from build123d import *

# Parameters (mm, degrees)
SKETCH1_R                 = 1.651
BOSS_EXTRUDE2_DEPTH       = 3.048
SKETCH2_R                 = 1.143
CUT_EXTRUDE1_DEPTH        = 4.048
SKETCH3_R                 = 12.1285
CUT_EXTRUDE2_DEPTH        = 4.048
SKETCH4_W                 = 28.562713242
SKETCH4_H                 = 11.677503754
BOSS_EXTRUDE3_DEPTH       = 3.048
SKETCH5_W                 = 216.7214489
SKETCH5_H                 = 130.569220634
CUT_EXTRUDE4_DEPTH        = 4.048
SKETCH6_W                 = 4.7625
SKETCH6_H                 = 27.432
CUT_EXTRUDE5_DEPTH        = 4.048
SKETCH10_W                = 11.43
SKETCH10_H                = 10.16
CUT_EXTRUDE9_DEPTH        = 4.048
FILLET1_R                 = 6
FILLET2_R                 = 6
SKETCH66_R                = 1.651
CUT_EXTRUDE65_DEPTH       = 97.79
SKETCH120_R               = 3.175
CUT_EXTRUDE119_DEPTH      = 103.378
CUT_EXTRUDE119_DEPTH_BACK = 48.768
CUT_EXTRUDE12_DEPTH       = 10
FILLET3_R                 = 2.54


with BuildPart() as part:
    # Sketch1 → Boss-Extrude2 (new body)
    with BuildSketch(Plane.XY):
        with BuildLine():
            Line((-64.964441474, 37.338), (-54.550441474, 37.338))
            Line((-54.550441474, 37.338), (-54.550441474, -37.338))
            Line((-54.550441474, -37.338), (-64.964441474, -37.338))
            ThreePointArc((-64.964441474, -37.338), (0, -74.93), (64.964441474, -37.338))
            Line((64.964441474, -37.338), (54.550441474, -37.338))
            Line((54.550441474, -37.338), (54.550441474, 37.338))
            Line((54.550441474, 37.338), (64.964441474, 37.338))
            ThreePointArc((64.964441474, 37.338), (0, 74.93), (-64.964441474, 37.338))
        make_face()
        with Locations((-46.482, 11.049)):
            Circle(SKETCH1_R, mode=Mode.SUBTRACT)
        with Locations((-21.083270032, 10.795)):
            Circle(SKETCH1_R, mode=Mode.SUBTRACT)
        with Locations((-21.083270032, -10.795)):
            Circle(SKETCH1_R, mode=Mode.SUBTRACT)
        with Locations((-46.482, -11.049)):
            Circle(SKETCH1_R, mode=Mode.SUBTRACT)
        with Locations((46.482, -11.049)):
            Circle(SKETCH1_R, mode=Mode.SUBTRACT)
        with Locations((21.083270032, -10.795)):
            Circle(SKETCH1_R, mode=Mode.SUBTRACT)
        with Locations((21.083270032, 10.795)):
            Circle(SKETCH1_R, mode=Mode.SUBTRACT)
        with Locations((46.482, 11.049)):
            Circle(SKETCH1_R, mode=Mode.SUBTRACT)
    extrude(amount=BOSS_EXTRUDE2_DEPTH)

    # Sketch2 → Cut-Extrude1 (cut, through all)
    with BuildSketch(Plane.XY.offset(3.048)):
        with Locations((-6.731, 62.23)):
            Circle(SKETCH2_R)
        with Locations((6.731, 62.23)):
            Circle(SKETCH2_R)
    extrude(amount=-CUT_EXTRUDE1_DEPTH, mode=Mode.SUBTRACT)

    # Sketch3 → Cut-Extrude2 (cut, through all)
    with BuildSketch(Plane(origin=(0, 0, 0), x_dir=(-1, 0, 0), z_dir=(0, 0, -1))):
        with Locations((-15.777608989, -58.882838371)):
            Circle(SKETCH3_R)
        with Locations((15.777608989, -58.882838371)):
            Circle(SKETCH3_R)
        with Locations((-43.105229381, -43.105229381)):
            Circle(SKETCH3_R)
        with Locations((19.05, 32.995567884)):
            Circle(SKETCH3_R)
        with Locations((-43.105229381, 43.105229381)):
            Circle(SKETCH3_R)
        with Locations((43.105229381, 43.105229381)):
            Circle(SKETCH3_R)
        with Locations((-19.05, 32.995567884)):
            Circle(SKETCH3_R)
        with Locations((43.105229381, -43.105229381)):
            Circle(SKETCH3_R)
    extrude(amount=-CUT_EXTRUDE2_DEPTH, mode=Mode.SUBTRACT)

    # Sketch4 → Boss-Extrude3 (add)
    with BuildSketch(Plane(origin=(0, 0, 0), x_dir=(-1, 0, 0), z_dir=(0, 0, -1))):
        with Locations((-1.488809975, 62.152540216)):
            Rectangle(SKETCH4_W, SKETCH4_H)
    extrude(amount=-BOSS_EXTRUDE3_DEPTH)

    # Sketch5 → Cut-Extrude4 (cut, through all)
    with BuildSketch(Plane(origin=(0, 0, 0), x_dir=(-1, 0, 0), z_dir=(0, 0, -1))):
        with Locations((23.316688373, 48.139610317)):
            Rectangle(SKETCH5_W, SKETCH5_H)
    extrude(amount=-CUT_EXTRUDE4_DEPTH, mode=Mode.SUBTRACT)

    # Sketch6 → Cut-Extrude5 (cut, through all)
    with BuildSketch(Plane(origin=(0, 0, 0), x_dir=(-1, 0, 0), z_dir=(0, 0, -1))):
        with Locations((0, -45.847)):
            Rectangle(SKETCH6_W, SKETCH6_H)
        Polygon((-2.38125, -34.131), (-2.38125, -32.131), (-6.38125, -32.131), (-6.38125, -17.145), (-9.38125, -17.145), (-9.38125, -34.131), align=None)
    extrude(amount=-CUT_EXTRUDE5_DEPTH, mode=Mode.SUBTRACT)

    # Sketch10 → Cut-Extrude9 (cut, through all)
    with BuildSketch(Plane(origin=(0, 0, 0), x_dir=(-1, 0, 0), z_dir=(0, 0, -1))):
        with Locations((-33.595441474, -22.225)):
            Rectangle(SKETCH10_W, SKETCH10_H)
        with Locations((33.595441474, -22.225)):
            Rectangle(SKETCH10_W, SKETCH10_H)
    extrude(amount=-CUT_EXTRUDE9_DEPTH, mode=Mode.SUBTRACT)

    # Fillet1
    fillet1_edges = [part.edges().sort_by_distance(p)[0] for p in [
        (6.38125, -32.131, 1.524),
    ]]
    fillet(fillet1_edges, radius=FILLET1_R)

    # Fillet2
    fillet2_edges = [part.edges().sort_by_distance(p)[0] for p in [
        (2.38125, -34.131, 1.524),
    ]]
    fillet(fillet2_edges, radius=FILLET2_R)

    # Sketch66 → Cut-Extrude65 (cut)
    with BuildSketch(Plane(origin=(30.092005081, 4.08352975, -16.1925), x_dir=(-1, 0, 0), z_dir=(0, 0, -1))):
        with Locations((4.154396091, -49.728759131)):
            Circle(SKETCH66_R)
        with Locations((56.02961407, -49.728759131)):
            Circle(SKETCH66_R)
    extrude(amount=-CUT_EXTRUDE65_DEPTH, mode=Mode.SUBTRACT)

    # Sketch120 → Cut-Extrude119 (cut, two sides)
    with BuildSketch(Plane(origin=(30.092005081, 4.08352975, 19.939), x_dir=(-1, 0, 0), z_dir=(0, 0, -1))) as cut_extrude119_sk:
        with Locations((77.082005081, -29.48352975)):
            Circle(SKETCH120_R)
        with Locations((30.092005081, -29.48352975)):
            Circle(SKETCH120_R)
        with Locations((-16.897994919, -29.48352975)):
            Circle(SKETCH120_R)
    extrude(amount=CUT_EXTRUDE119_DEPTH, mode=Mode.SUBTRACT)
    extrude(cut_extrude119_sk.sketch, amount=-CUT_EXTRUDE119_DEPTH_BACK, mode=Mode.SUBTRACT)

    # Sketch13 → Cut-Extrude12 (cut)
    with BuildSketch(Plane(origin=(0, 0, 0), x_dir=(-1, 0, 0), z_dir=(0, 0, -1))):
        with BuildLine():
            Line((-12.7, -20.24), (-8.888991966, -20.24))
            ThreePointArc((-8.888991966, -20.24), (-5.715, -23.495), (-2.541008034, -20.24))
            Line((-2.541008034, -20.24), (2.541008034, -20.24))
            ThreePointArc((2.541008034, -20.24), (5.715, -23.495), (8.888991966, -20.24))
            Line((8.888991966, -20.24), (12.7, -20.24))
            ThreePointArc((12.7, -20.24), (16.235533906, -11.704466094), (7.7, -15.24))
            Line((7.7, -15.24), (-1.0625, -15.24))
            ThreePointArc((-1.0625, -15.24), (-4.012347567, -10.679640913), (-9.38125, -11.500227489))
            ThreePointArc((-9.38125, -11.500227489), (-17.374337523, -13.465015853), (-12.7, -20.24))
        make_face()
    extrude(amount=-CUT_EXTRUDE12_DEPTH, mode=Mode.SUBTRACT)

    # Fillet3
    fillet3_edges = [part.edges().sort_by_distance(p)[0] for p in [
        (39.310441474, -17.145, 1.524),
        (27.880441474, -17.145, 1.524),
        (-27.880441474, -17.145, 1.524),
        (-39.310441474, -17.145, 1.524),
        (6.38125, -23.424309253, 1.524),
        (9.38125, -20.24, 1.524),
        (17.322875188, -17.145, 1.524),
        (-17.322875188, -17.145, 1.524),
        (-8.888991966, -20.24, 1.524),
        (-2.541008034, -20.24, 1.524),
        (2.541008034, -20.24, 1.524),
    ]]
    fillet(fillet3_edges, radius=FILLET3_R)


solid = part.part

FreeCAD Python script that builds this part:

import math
import FreeCAD as App
import Part
import Sketcher

V = App.Vector
Q = App.Units.Quantity


def edges_at(feature, points):
    """Names of the edges that pass closest to the given points."""
    edges = feature.Shape.Edges
    near = lambda p: min(range(len(edges)), key=lambda i: edges[i].distToShape(Part.Vertex(*p))[0])
    return sorted({f"Edge{near(p) + 1}" for p in points})


def add_polygon(sketch, points):
    """Adds a closed chain of lines whose ends are joined by coincident constraints."""
    first, n = sketch.GeometryCount, len(points)
    for a, b in zip(points, points[1:] + points[:1]):
        sketch.addGeometry(Part.LineSegment(App.Vector(*a, 0), App.Vector(*b, 0)), False)
    for i in range(n):
        sketch.addConstraint(Sketcher.Constraint("Coincident", first + i, 2, first + (i + 1) % n, 1))

doc = App.newDocument("Part")
params = doc.addObject("Spreadsheet::Sheet", "Params")
for row, (alias, value) in enumerate([
    ("sketch1_diameter", "0.13 in"),
    ("sketch1_radius", "2.95 in"),
    ("sketch1_width", "0.41 in"),
    ("sketch1_height", "2.94 in"),
    ("pad1_length", "0.12 in"),
    ("sketch2_diameter", "0.09 in"),
    ("sketch3_diameter", "0.955 in"),
    ("pad2_length", "0.12 in"),
    ("sketch6_height", "1.08 in"),
    ("sketch6_height2", "0.59 in"),
    ("sketch6_width", "0.1875 in"),
    ("sketch7_height", "0.4 in"),
    ("sketch7_width", "0.45 in"),
    ("fillet_radius", "6 mm"),
    ("fillet2_radius", "6 mm"),
    ("sketch8_diameter", "0.13 in"),
    ("pocket6_length", "3.85 in"),
    ("sketch9_diameter", "0.25 in"),
    ("sketch10_radius", "0.125 in"),
    ("pocket8_length", "10 mm"),
    ("fillet3_radius", "0.1 in"),
], start=1):
    params.set(f"A{row}", alias)
    params.set(f"B{row}", "=" + value)
    params.setAlias(f"B{row}", alias)

body = doc.addObject("PartDesign::Body", "Body")

# Sketch on XY plane
sketch1 = doc.addObject("Sketcher::SketchObject", "Sketch")
body.addObject(sketch1)
sketch1.AttachmentSupport = (doc.XY_Plane, [""])
sketch1.MapMode = "FlatFace"
sketch1.addGeometry([
    Part.LineSegment(V(-65, 37.3, 0), V(-54.6, 37.3, 0)),  # 0
    Part.LineSegment(V(-54.6, 37.3, 0), V(-54.6, -37.3, 0)),  # 1
    Part.LineSegment(V(-54.6, -37.3, 0), V(-65, -37.3, 0)),  # 2
    Part.ArcOfCircle(Part.Circle(V(0, 0, 0), V(0, 0, 1), 74.9), math.radians(-150), math.radians(-30)),  # 3
    Part.LineSegment(V(65, -37.3, 0), V(54.6, -37.3, 0)),  # 4
    Part.LineSegment(V(54.6, -37.3, 0), V(54.6, 37.3, 0)),  # 5
    Part.LineSegment(V(54.6, 37.3, 0), V(65, 37.3, 0)),  # 6
    Part.ArcOfCircle(Part.Circle(V(0, 0, 0), V(0, 0, 1), 74.9), math.radians(30), math.radians(150)),  # 7
    Part.Circle(V(-46.5, -11, 0), V(0, 0, 1), 1.7),  # 8
    Part.Circle(V(-21.1, -10.8, 0), V(0, 0, 1), 1.7),  # 9
    Part.Circle(V(21.1, -10.8, 0), V(0, 0, 1), 1.7),  # 10
    Part.Circle(V(46.5, -11, 0), V(0, 0, 1), 1.7),  # 11
    Part.Circle(V(-46.5, 11, 0), V(0, 0, 1), 1.7),  # 12
    Part.Circle(V(-21.1, 10.8, 0), V(0, 0, 1), 1.7),  # 13
    Part.Circle(V(21.1, 10.8, 0), V(0, 0, 1), 1.7),  # 14
    Part.Circle(V(46.5, 11, 0), V(0, 0, 1), 1.7),  # 15
], False)
sketch1.addConstraint([
    Sketcher.Constraint("Coincident", 0, 2, 1, 1),
    Sketcher.Constraint("Coincident", 1, 2, 2, 1),
    Sketcher.Constraint("Coincident", 2, 2, 3, 1),
    Sketcher.Constraint("Coincident", 3, 2, 4, 1),
    Sketcher.Constraint("Coincident", 4, 2, 5, 1),
    Sketcher.Constraint("Coincident", 5, 2, 6, 1),
    Sketcher.Constraint("Coincident", 6, 2, 7, 1),
    Sketcher.Constraint("Coincident", 7, 2, 0, 1),
    Sketcher.Constraint("Horizontal", 0),
    Sketcher.Constraint("Vertical", 1),
    Sketcher.Constraint("Horizontal", 2),
    Sketcher.Constraint("Horizontal", 4),
    Sketcher.Constraint("Vertical", 5),
    Sketcher.Constraint("Horizontal", 6),
    Sketcher.Constraint("Coincident", 3, 3, -1, 1),
    Sketcher.Constraint("Coincident", 7, 3, -1, 1),
    Sketcher.Constraint("Equal", 3, 7),
    Sketcher.Constraint("Equal", 8, 9),
    Sketcher.Constraint("Equal", 9, 10),
    Sketcher.Constraint("Equal", 10, 11),
    Sketcher.Constraint("Equal", 11, 12),
    Sketcher.Constraint("Equal", 12, 13),
    Sketcher.Constraint("Equal", 13, 14),
    Sketcher.Constraint("Equal", 14, 15),
    Sketcher.Constraint("Symmetric", 11, 3, 12, 3, -1, 1),
    Sketcher.Constraint("Symmetric", 10, 3, 13, 3, -1, 1),
    Sketcher.Constraint("Symmetric", 9, 3, 14, 3, -1, 1),
    Sketcher.Constraint("Symmetric", 8, 3, 15, 3, -1, 1),
    Sketcher.Constraint("Symmetric", 0, 2, 4, 2, -1, 1),
    Sketcher.Constraint("Symmetric", 9, 3, 10, 3, -2),
    Sketcher.Constraint("Symmetric", 8, 3, 11, 3, -2),
    Sketcher.Constraint("Horizontal", 2, 2, 3, 2),
    Sketcher.Constraint("Horizontal", 0, 2, 5, 2),
    Sketcher.Constraint("Diameter", 8, Q("0.13 in")),
    Sketcher.Constraint("Radius", 3, Q("2.95 in")),
    Sketcher.Constraint("DistanceX", 0, 1, 0, 2, Q("0.41 in")),
    Sketcher.Constraint("DistanceY", 1, 2, 1, 1, Q("2.94 in")),
    Sketcher.Constraint("DistanceX", 8, 3, -1, 1, Q("1.83 in")),
    Sketcher.Constraint("DistanceY", 8, 3, 9, 3, Q("0.01 in")),
    Sketcher.Constraint("DistanceY", 8, 3, 12, 3, Q("0.87 in")),
    Sketcher.Constraint("DistanceX", 9, 3, 10, 3, Q("1.6601 in")),
])
sketch1.setExpression("Constraints[33]", "Params.sketch1_diameter")
sketch1.setExpression("Constraints[34]", "Params.sketch1_radius")
sketch1.setExpression("Constraints[35]", "Params.sketch1_width")
sketch1.setExpression("Constraints[36]", "Params.sketch1_height")
pad1 = doc.addObject("PartDesign::Pad", "Pad")
body.addObject(pad1)
pad1.Profile = sketch1
pad1.setExpression("Length", "Params.pad1_length")

# Sketch on XY plane
sketch2 = doc.addObject("Sketcher::SketchObject", "Sketch001")
body.addObject(sketch2)
sketch2.AttachmentSupport = (doc.XY_Plane, [""])
sketch2.MapMode = "FlatFace"
sketch2.AttachmentOffset = App.Placement(V(0, 0, 0.12 * 25.4), App.Rotation())
sketch2.addGeometry([
    Part.Circle(V(-6.7, 62.2, 0), V(0, 0, 1), 1.1),
    Part.Circle(V(6.7, 62.2, 0), V(0, 0, 1), 1.1),
], False)
sketch2.addConstraint([
    Sketcher.Constraint("Equal", 0, 1),
    Sketcher.Constraint("Symmetric", 0, 3, 1, 3, -2),
    Sketcher.Constraint("Diameter", 0, Q("0.09 in")),
    Sketcher.Constraint("DistanceY", -1, 1, 0, 3, Q("2.45 in")),
    Sketcher.Constraint("DistanceX", 0, 3, 1, 3, Q("0.53 in")),
])
sketch2.setExpression("Constraints[2]", "Params.sketch2_diameter")
pocket1 = doc.addObject("PartDesign::Pocket", "Pocket")
body.addObject(pocket1)
pocket1.Profile = sketch2
pocket1.Type = "ThroughAll"

# Sketch on XY plane
sketch3 = doc.addObject("Sketcher::SketchObject", "Sketch002")
body.addObject(sketch3)
sketch3.AttachmentSupport = (doc.XY_Plane, [""])
sketch3.MapMode = "FlatFace"
sketch3.addGeometry([
    Part.Circle(V(16, -59, 0), V(0, 0, 1), 12),  # 0
    Part.Circle(V(-16, -59, 0), V(0, 0, 1), 12),  # 1
    Part.Circle(V(43, -43, 0), V(0, 0, 1), 12),  # 2
    Part.Circle(V(-19, 33, 0), V(0, 0, 1), 12),  # 3
    Part.Circle(V(43, 43, 0), V(0, 0, 1), 12),  # 4
    Part.Circle(V(-43, 43, 0), V(0, 0, 1), 12),  # 5
    Part.Circle(V(19, 33, 0), V(0, 0, 1), 12),  # 6
    Part.Circle(V(-43, -43, 0), V(0, 0, 1), 12),  # 7
], False)
sketch3.addConstraint([
    Sketcher.Constraint("Equal", 0, 1),
    Sketcher.Constraint("Equal", 1, 2),
    Sketcher.Constraint("Equal", 2, 3),
    Sketcher.Constraint("Equal", 3, 4),
    Sketcher.Constraint("Equal", 4, 5),
    Sketcher.Constraint("Equal", 5, 6),
    Sketcher.Constraint("Equal", 6, 7),
    Sketcher.Constraint("Symmetric", 2, 3, 5, 3, -1, 1),
    Sketcher.Constraint("Symmetric", 4, 3, 7, 3, -1, 1),
    Sketcher.Constraint("Symmetric", 0, 3, 1, 3, -2),
    Sketcher.Constraint("Symmetric", 4, 3, 5, 3, -2),
    Sketcher.Constraint("Symmetric", 3, 3, 6, 3, -2),
    Sketcher.Constraint("Diameter", 0, Q("0.955 in")),
    Sketcher.Constraint("DistanceX", 3, 3, 6, 3, Q("1.5 in")),
    Sketcher.Constraint("DistanceX", -1, 1, 0, 3, 15.777609),
    Sketcher.Constraint("DistanceY", 0, 3, -1, 1, 58.882838),
    Sketcher.Constraint("DistanceX", -1, 1, 2, 3, 43.105229),
    Sketcher.Constraint("DistanceY", 2, 3, -1, 1, 43.105229),
    Sketcher.Constraint("DistanceY", 3, 3, 4, 3, 10.109661),
])
sketch3.setExpression("Constraints[12]", "Params.sketch3_diameter")
pocket2 = doc.addObject("PartDesign::Pocket", "Pocket001")
body.addObject(pocket2)
pocket2.Profile = sketch3
pocket2.Type = "ThroughAll"
pocket2.Reversed = True

# Sketch on XY plane
sketch4 = doc.addObject("Sketcher::SketchObject", "Sketch003")
body.addObject(sketch4)
sketch4.AttachmentSupport = (doc.XY_Plane, [""])
sketch4.MapMode = "FlatFace"
add_polygon(sketch4, [(16, 68), (16, 56), (-13, 56), (-13, 68)])  # lines 0-3
sketch4.addConstraint([
    Sketcher.Constraint("Vertical", 0),
    Sketcher.Constraint("Horizontal", 1),
    Sketcher.Constraint("Vertical", 2),
    Sketcher.Constraint("Horizontal", 3),
    Sketcher.Constraint("DistanceX", 1, 2, 1, 1, 28.562713),
    Sketcher.Constraint("DistanceY", 0, 2, 0, 1, 11.677504),
    Sketcher.Constraint("DistanceY", -1, 1, 0, 2, 56.313788),
    Sketcher.Constraint("DistanceX", -1, 1, 0, 2, 15.770167),
])
pad2 = doc.addObject("PartDesign::Pad", "Pad001")
body.addObject(pad2)
pad2.Profile = sketch4
pad2.setExpression("Length", "Params.pad2_length")

# Sketch on XY plane
sketch5 = doc.addObject("Sketcher::SketchObject", "Sketch004")
body.addObject(sketch5)
sketch5.AttachmentSupport = (doc.XY_Plane, [""])
sketch5.MapMode = "FlatFace"
add_polygon(sketch5, [(85, 113), (85, -17), (-132, -17), (-132, 113)])  # lines 0-3
sketch5.addConstraint([
    Sketcher.Constraint("Vertical", 0),
    Sketcher.Constraint("Horizontal", 1),
    Sketcher.Constraint("Vertical", 2),
    Sketcher.Constraint("Horizontal", 3),
    Sketcher.Constraint("DistanceY", 0, 2, -1, 1, Q("0.675 in")),
    Sketcher.Constraint("DistanceX", 1, 2, 1, 1, 216.721449),
    Sketcher.Constraint("DistanceY", 0, 2, 0, 1, 130.569221),
    Sketcher.Constraint("DistanceX", -1, 1, 0, 2, 85.044036),
])
pocket3 = doc.addObject("PartDesign::Pocket", "Pocket002")
body.addObject(pocket3)
pocket3.Profile = sketch5
pocket3.Type = "ThroughAll"
pocket3.Reversed = True

# Sketch on XY plane
sketch6 = doc.addObject("Sketcher::SketchObject", "Sketch005")
body.addObject(sketch6)
sketch6.AttachmentSupport = (doc.XY_Plane, [""])
sketch6.MapMode = "FlatFace"
add_polygon(sketch6, [(2.4, -34.1), (2.4, -59.6), (-2.4, -59.6), (-2.4, -32.1), (6.4, -32.1), (6.4, -17.1), (9.4, -17.1), (9.4, -34.1)])  # lines 0-7
sketch6.addConstraint([
    Sketcher.Constraint("Vertical", 0),
    Sketcher.Constraint("Horizontal", 1),
    Sketcher.Constraint("Vertical", 2),
    Sketcher.Constraint("Horizontal", 3),
    Sketcher.Constraint("Vertical", 4),
    Sketcher.Constraint("Horizontal", 5),
    Sketcher.Constraint("Vertical", 6),
    Sketcher.Constraint("Horizontal", 7),
    Sketcher.Constraint("DistanceY", 2, 1, 2, 2, Q("1.08 in")),
    Sketcher.Constraint("DistanceY", 4, 1, 4, 2, Q("0.59 in")),
    Sketcher.Constraint("DistanceX", 1, 2, 1, 1, Q("0.1875 in")),
    Sketcher.Constraint("DistanceX", -1, 1, 0, 2, Q("0.09375 in")),
    Sketcher.Constraint("DistanceY", 0, 2, -1, 1, Q("2.345 in")),
    Sketcher.Constraint("DistanceX", 3, 1, 3, 2, 8.7625),
    Sketcher.Constraint("DistanceX", 5, 1, 5, 2, 3.0),
    Sketcher.Constraint("DistanceY", 0, 2, 0, 1, 25.432),
])
sketch6.setExpression("Constraints[16]", "Params.sketch6_height")
sketch6.setExpression("Constraints[17]", "Params.sketch6_height2")
sketch6.setExpression("Constraints[18]", "Params.sketch6_width")
pocket4 = doc.addObject("PartDesign::Pocket", "Pocket003")
body.addObject(pocket4)
pocket4.Profile = sketch6
pocket4.Type = "ThroughAll"
pocket4.Reversed = True

# Sketch on XY plane
sketch7 = doc.addObject("Sketcher::SketchObject", "Sketch006")
body.addObject(sketch7)
sketch7.AttachmentSupport = (doc.XY_Plane, [""])
sketch7.MapMode = "FlatFace"
add_polygon(sketch7, [(39, -17), (39, -27), (28, -27), (28, -17)])  # lines 0-3
add_polygon(sketch7, [(-28, -17), (-28, -27), (-39, -27), (-39, -17)])  # lines 4-7
sketch7.addConstraint([
    Sketcher.Constraint("Vertical", 0),
    Sketcher.Constraint("Horizontal", 1),
    Sketcher.Constraint("Vertical", 2),
    Sketcher.Constraint("Horizontal", 3),
    Sketcher.Constraint("Vertical", 4),
    Sketcher.Constraint("Horizontal", 5),
    Sketcher.Constraint("Vertical", 6),
    Sketcher.Constraint("Horizontal", 7),
    Sketcher.Constraint("Symmetric", 1, 2, 4, 2, -2),
    Sketcher.Constraint("Symmetric", 3, 2, 6, 2, -2),
    Sketcher.Constraint("DistanceY", 0, 2, 0, 1, Q("0.4 in")),
    Sketcher.Constraint("DistanceX", 1, 2, 1, 1, Q("0.45 in")),
    Sketcher.Constraint("DistanceY", 0, 2, -1, 1, Q("1.075 in")),
    Sketcher.Constraint("DistanceX", -1, 1, 0, 2, 39.310441),
])
sketch7.setExpression("Constraints[18]", "Params.sketch7_height")
sketch7.setExpression("Constraints[19]", "Params.sketch7_width")
pocket5 = doc.addObject("PartDesign::Pocket", "Pocket004")
body.addObject(pocket5)
pocket5.Profile = sketch7
pocket5.Type = "ThroughAll"
pocket5.Reversed = True
doc.recompute()

fillet = doc.addObject("PartDesign::Fillet", "Fillet")
body.addObject(fillet)
fillet.Base = (pocket5, edges_at(pocket5, [(6.381, -32.131, 1.524)]))
fillet.setExpression("Radius", "Params.fillet_radius")
doc.recompute()

fillet2 = doc.addObject("PartDesign::Fillet", "Fillet001")
body.addObject(fillet2)
fillet2.Base = (fillet, edges_at(fillet, [(2.381, -34.131, 1.524)]))
fillet2.setExpression("Radius", "Params.fillet2_radius")

# Sketch on XY plane
sketch8 = doc.addObject("Sketcher::SketchObject", "Sketch007")
body.addObject(sketch8)
sketch8.AttachmentSupport = (doc.XY_Plane, [""])
sketch8.MapMode = "FlatFace"
sketch8.AttachmentOffset = App.Placement(V(0, 0, -0.6375 * 25.4), App.Rotation())
sketch8.addGeometry([
    Part.Circle(V(25.9, -45.6, 0), V(0, 0, 1), 1.7),
    Part.Circle(V(-25.9, -45.6, 0), V(0, 0, 1), 1.7),
], False)
sketch8.addConstraint([
    Sketcher.Constraint("Equal", 0, 1),
    Sketcher.Constraint("Symmetric", 0, 3, 1, 3, -2),
    Sketcher.Constraint("Diameter", 0, Q("0.13 in")),
    Sketcher.Constraint("DistanceX", -1, 1, 0, 3, 25.937609),
    Sketcher.Constraint("DistanceY", 0, 3, -1, 1, 45.645229),
])
sketch8.setExpression("Constraints[2]", "Params.sketch8_diameter")
pocket6 = doc.addObject("PartDesign::Pocket", "Pocket005")
body.addObject(pocket6)
pocket6.Profile = sketch8
pocket6.setExpression("Length", "Params.pocket6_length")
pocket6.Reversed = True

# Sketch on XY plane
sketch9 = doc.addObject("Sketcher::SketchObject", "Sketch008")
body.addObject(sketch9)
sketch9.AttachmentSupport = (doc.XY_Plane, [""])
sketch9.MapMode = "FlatFace"
sketch9.AttachmentOffset = App.Placement(V(0, 0, 0.785 * 25.4), App.Rotation())
sketch9.addGeometry([
    Part.Circle(V(-47, -25.4, 0), V(0, 0, 1), 3.2),
    Part.Circle(V(0, -25.4, 0), V(0, 0, 1), 3.2),
    Part.Circle(V(47, -25.4, 0), V(0, 0, 1), 3.2),
], False)
sketch9.addConstraint([
    Sketcher.Constraint("Equal", 0, 1),
    Sketcher.Constraint("Equal", 1, 2),
    Sketcher.Constraint("Symmetric", 0, 3, 2, 3, -2),
    Sketcher.Constraint("PointOnObject", 1, 3, -2),
    Sketcher.Constraint("Horizontal", 0, 3, 1, 3),
    Sketcher.Constraint("Diameter", 0, Q("0.25 in")),
    Sketcher.Constraint("DistanceY", 0, 3, -1, 1, Q("1 in")),
    Sketcher.Constraint("DistanceX", 0, 3, 2, 3, Q("3.7 in")),
])
sketch9.setExpression("Constraints[5]", "Params.sketch9_diameter")
pocket7 = doc.addObject("PartDesign::Pocket", "Pocket006")
body.addObject(pocket7)
pocket7.Profile = sketch9
pocket7.Type = "ThroughAll"
pocket7.Midplane = True

# Sketch on XY plane
sketch10 = doc.addObject("Sketcher::SketchObject", "Sketch009")
body.addObject(sketch10)
sketch10.AttachmentSupport = (doc.XY_Plane, [""])
sketch10.MapMode = "FlatFace"
sketch10.addGeometry([
    Part.LineSegment(V(12.7, -20.2, 0), V(8.9, -20.2, 0)),  # 0
    Part.ArcOfCircle(Part.Circle(V(5.7, -20.3, 0), V(0, 0, 1), 3.2), math.radians(179), math.radians(361)),  # 1
    Part.LineSegment(V(2.5, -20.2, 0), V(-2.5, -20.2, 0)),  # 2
    Part.ArcOfCircle(Part.Circle(V(-5.7, -20.3, 0), V(0, 0, 1), 3.2), math.radians(179), math.radians(361)),  # 3
    Part.LineSegment(V(-8.9, -20.2, 0), V(-12.7, -20.2, 0)),  # 4
    Part.ArcOfCircle(Part.Circle(V(-12.7, -15.2, 0), V(0, 0, 1), 5), math.radians(0), math.radians(270)),  # 5
    Part.LineSegment(V(-7.7, -15.2, 0), V(1.1, -15.2, 0)),  # 6
    Part.ArcOfCircle(Part.Circle(V(6.1, -15.2, 0), V(0, 0, 1), 5), math.radians(48), math.radians(180)),  # 7
    Part.ArcOfCircle(Part.Circle(V(12.7, -15.2, 0), V(0, 0, 1), 5), math.radians(-90), math.radians(132)),  # 8
], False)
sketch10.addConstraint([
    Sketcher.Constraint("Coincident", 0, 2, 1, 2),
    Sketcher.Constraint("Coincident", 1, 1, 2, 1),
    Sketcher.Constraint("Coincident", 2, 2, 3, 2),
    Sketcher.Constraint("Coincident", 3, 1, 4, 1),
    Sketcher.Constraint("Tangent", 4, 2, 5, 2),
    Sketcher.Constraint("Coincident", 5, 1, 6, 1),
    Sketcher.Constraint("Coincident", 6, 2, 7, 2),
    Sketcher.Constraint("Coincident", 7, 1, 8, 2),
    Sketcher.Constraint("Tangent", 8, 1, 0, 1),
    Sketcher.Constraint("Horizontal", 0),
    Sketcher.Constraint("Horizontal", 2),
    Sketcher.Constraint("Horizontal", 4),
    Sketcher.Constraint("Horizontal", 6),
    Sketcher.Constraint("Equal", 1, 3),
    Sketcher.Constraint("Equal", 5, 7),
    Sketcher.Constraint("Equal", 7, 8),
    Sketcher.Constraint("Symmetric", 1, 3, 3, 3, -2),
    Sketcher.Constraint("Symmetric", 5, 3, 8, 3, -2),
    Sketcher.Constraint("Horizontal", 5, 3, 7, 3),
    Sketcher.Constraint("Horizontal", 0, 2, 1, 1),
    Sketcher.Constraint("Horizontal", 8, 3, 5, 1),
    Sketcher.Constraint("Radius", 1, Q("0.125 in")),
    Sketcher.Constraint("DistanceX", 5, 3, 8, 3, Q("1 in")),
    Sketcher.Constraint("DistanceY", 1, 3, -1, 1, Q("0.8 in")),
    Sketcher.Constraint("DistanceY", 5, 3, -1, 1, Q("0.6 in")),
    Sketcher.Constraint("Radius", 5, 5.0),
    Sketcher.Constraint("DistanceX", 3, 3, 1, 3, Q("0.45 in")),
    Sketcher.Constraint("DistanceX", 6, 1, 6, 2, 8.7625),
])
sketch10.setExpression("Constraints[21]", "Params.sketch10_radius")
pocket8 = doc.addObject("PartDesign::Pocket", "Pocket007")
body.addObject(pocket8)
pocket8.Profile = sketch10
pocket8.setExpression("Length", "Params.pocket8_length")
pocket8.Reversed = True
doc.recompute()

fillet3 = doc.addObject("PartDesign::Fillet", "Fillet002")
body.addObject(fillet3)
fillet3.Base = (pocket8, edges_at(pocket8, [
    (39.31, -17.145, 1.524),
    (27.88, -17.145, 1.524),
    (-27.88, -17.145, 1.524),
    (-39.31, -17.145, 1.524),
    (6.381, -23.424, 1.524),
    (9.381, -20.24, 1.524),
    (17.323, -17.145, 1.524),
    (-17.323, -17.145, 1.524),
    (-8.889, -20.24, 1.524),
    (-2.541, -20.24, 1.524),
    (2.541, -20.24, 1.524),
]))
fillet3.setExpression("Radius", "Params.fillet3_radius")

doc.recompute()
